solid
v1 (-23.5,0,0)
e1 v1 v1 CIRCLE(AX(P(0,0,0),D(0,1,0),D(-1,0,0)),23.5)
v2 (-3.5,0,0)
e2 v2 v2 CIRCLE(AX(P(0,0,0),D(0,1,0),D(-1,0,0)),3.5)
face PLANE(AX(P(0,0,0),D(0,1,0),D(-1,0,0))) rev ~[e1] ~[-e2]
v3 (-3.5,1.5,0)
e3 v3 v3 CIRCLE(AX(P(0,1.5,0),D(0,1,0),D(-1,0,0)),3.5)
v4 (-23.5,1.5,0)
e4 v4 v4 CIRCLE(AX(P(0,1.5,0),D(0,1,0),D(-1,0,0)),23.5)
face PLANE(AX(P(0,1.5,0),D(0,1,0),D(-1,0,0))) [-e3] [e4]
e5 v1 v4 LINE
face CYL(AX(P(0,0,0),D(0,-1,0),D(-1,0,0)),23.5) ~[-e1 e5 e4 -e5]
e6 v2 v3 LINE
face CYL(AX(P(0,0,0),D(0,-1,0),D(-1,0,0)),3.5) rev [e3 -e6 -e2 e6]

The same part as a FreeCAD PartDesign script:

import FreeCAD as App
import Part
import Sketcher
from FreeCAD import Vector
Q = App.Units.Quantity

doc = App.newDocument("Part")
body = doc.addObject("PartDesign::Body", "Body")

# Sketch on XZ plane
sketch1 = body.newObject("Sketcher::SketchObject", "Sketch")
sketch1.AttachmentSupport = (doc.getObject("XZ_Plane"), [""])
sketch1.MapMode = "FlatFace"
sketch1.addGeometry(Part.Circle(Vector(0, 0, 0), Vector(0, 0, 1), 23.5), False)
sketch1.addGeometry(Part.Circle(Vector(0, 0, 0), Vector(0, 0, 1), 3.5), False)
sketch1.addConstraint(Sketcher.Constraint("Coincident", 0, 3, -1, 1))
sketch1.addConstraint(Sketcher.Constraint("Coincident", 1, 3, -1, 1))
sketch1.addConstraint(Sketcher.Constraint("Diameter", 0, Q("47 mm")))
sketch1.addConstraint(Sketcher.Constraint("Diameter", 1, Q("7 mm")))
pad1 = body.newObject("PartDesign::Pad", "Pad")
pad1.Profile = sketch1
pad1.Length = 1.5
pad1.Reversed = True

doc.recompute()
